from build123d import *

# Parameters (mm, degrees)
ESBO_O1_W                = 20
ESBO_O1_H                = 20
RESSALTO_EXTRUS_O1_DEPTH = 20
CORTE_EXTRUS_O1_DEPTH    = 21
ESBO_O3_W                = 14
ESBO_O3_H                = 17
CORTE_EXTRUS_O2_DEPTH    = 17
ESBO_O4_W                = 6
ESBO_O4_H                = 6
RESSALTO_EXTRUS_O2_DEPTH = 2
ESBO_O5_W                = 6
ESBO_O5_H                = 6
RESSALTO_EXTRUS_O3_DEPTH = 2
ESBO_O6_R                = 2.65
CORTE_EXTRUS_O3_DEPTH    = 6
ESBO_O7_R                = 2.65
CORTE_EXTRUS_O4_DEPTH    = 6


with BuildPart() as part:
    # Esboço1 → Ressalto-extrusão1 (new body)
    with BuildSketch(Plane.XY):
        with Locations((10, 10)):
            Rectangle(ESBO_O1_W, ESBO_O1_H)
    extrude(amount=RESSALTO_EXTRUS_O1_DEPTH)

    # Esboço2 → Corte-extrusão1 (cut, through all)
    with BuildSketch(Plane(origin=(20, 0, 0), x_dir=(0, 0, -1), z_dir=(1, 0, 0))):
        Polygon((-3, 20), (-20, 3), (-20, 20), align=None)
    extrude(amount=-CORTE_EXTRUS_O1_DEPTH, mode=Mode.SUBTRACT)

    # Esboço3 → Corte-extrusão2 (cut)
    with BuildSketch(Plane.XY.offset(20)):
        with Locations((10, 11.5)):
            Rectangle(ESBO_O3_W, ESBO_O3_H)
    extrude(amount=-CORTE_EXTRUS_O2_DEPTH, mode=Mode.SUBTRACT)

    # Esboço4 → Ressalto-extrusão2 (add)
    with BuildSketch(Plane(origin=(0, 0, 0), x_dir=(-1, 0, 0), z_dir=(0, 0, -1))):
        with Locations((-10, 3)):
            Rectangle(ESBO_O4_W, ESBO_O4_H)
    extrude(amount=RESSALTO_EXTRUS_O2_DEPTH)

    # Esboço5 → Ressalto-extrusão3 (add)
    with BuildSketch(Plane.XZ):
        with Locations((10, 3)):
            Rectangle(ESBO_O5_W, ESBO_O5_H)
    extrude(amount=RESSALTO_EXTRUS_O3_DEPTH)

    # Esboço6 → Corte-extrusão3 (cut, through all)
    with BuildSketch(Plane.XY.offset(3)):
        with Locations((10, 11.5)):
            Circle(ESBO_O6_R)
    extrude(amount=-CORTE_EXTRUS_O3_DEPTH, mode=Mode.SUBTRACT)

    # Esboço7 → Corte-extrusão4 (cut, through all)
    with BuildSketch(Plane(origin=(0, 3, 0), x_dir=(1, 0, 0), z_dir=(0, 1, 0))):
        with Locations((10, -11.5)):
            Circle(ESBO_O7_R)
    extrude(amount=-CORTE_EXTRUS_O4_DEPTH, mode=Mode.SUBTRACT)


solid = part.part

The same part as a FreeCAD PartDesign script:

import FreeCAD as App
import Part
import Sketcher
from FreeCAD import Vector

doc = App.newDocument("Part")
body = doc.addObject("PartDesign::Body", "Body")

sketch1 = body.newObject("Sketcher::SketchObject", "Sketch")
sketch1.AttachmentSupport = (doc.getObject("XY_Plane"), [""])
sketch1.MapMode = "FlatFace"
sketch1.addGeometry([
    Part.LineSegment(Vector(0, 20, 0), Vector(0, 0, 0)),
    Part.LineSegment(Vector(0, 0, 0), Vector(20, 0, 0)),
    Part.LineSegment(Vector(20, 0, 0), Vector(20, 20, 0)),
    Part.LineSegment(Vector(20, 20, 0), Vector(0, 20, 0)),
], False)
sketch1.addConstraint([
    Sketcher.Constraint("Coincident", 0, 2, 1, 1),
    Sketcher.Constraint("Coincident", 1, 2, 2, 1),
    Sketcher.Constraint("Coincident", 2, 2, 3, 1),
    Sketcher.Constraint("Coincident", 3, 2, 0, 1),
    Sketcher.Constraint("Vertical", 0),
    Sketcher.Constraint("Horizontal", 1),
    Sketcher.Constraint("Vertical", 2),
    Sketcher.Constraint("Horizontal", 3),
    Sketcher.Constraint("Coincident", 0, 2, -1, 1),
    Sketcher.Constraint("Equal", 3, 0),
    Sketcher.Constraint("DistanceX", 1, 1, 1, 2, 20.0),
])
pad1 = body.newObject("PartDesign::Pad", "Pad")
pad1.Profile = sketch1
pad1.Length = 20

sketch2 = body.newObject("Sketcher::SketchObject", "Sketch001")
sketch2.AttachmentSupport = (doc.getObject("YZ_Plane"), [""])
sketch2.MapMode = "FlatFace"
sketch2.AttachmentOffset = App.Placement(Vector(0, 0, 20), App.Rotation())
sketch2.addGeometry([
    Part.LineSegment(Vector(3, 20, 0), Vector(20, 3, 0)),
    Part.LineSegment(Vector(20, 3, 0), Vector(20, 20, 0)),
    Part.LineSegment(Vector(20, 20, 0), Vector(3, 20, 0)),
], False)
sketch2.addConstraint([
    Sketcher.Constraint("Coincident", 0, 2, 1, 1),
    Sketcher.Constraint("Coincident", 1, 2, 2, 1),
    Sketcher.Constraint("Coincident", 2, 2, 0, 1),
    Sketcher.Constraint("Vertical", 1),
    Sketcher.Constraint("Horizontal", 2),
    Sketcher.Constraint("Equal", 2, 1),
    Sketcher.Constraint("DistanceX", 2, 2, 2, 1, 17.0),
    Sketcher.Constraint("DistanceX", -1, 1, 0, 2, 20.0),
    Sketcher.Constraint("DistanceY", -1, 1, 0, 2, 3.0),
])
pocket1 = body.newObject("PartDesign::Pocket", "Pocket")
pocket1.Profile = sketch2
pocket1.Type = "ThroughAll"

sketch3 = body.newObject("Sketcher::SketchObject", "Sketch002")
sketch3.AttachmentSupport = (doc.getObject("XY_Plane"), [""])
sketch3.MapMode = "FlatFace"
sketch3.AttachmentOffset = App.Placement(Vector(0, 0, 20), App.Rotation())
sketch3.addGeometry([
    Part.LineSegment(Vector(3, 20, 0), Vector(3, 3, 0)),
    Part.LineSegment(Vector(3, 3, 0), Vector(17, 3, 0)),
    Part.LineSegment(Vector(17, 3, 0), Vector(17, 20, 0)),
    Part.LineSegment(Vector(17, 20, 0), Vector(3, 20, 0)),
], False)
sketch3.addConstraint([
    Sketcher.Constraint("Coincident", 0, 2, 1, 1),
    Sketcher.Constraint("Coincident", 1, 2, 2, 1),
    Sketcher.Constraint("Coincident", 2, 2, 3, 1),
    Sketcher.Constraint("Coincident", 3, 2, 0, 1),
    Sketcher.Constraint("Vertical", 0),
    Sketcher.Constraint("Horizontal", 1),
    Sketcher.Constraint("Vertical", 2),
    Sketcher.Constraint("Horizontal", 3),
    Sketcher.Constraint("DistanceX", 1, 1, 1, 2, 14.0),
    Sketcher.Constraint("DistanceY", 0, 2, 0, 1, 17.0),
    Sketcher.Constraint("DistanceX", -1, 1, 0, 2, 3.0),
    Sketcher.Constraint("DistanceY", -1, 1, 0, 2, 3.0),
])
pocket2 = body.newObject("PartDesign::Pocket", "Pocket001")
pocket2.Profile = sketch3
pocket2.Length = 17

sketch4 = body.newObject("Sketcher::SketchObject", "Sketch003")
sketch4.AttachmentSupport = (doc.getObject("XY_Plane"), [""])
sketch4.MapMode = "FlatFace"
sketch4.addGeometry([
    Part.LineSegment(Vector(13, 6, 0), Vector(13, 0, 0)),
    Part.LineSegment(Vector(13, 0, 0), Vector(7, 0, 0)),
    Part.LineSegment(Vector(7, 0, 0), Vector(7, 6, 0)),
    Part.LineSegment(Vector(7, 6, 0), Vector(13, 6, 0)),
], False)
sketch4.addConstraint([
    Sketcher.Constraint("Coincident", 0, 2, 1, 1),
    Sketcher.Constraint("Coincident", 1, 2, 2, 1),
    Sketcher.Constraint("Coincident", 2, 2, 3, 1),
    Sketcher.Constraint("Coincident", 3, 2, 0, 1),
    Sketcher.Constraint("Vertical", 0),
    Sketcher.Constraint("Horizontal", 1),
    Sketcher.Constraint("Vertical", 2),
    Sketcher.Constraint("Horizontal", 3),
    Sketcher.Constraint("PointOnObject", 0, 2, -1),
    Sketcher.Constraint("Equal", 3, 0),
    Sketcher.Constraint("DistanceX", 1, 2, 1, 1, 6.0),
    Sketcher.Constraint("DistanceX", -1, 1, 0, 2, 13.0),
])
pad2 = body.newObject("PartDesign::Pad", "Pad001")
pad2.Profile = sketch4
pad2.Length = 2
pad2.Reversed = True

sketch5 = body.newObject("Sketcher::SketchObject", "Sketch004")
sketch5.AttachmentSupport = (doc.getObject("XZ_Plane"), [""])
sketch5.MapMode = "FlatFace"
sketch5.addGeometry([
    Part.LineSegment(Vector(7, 6, 0), Vector(7, 0, 0)),
    Part.LineSegment(Vector(7, 0, 0), Vector(13, 0, 0)),
    Part.LineSegment(Vector(13, 0, 0), Vector(13, 6, 0)),
    Part.LineSegment(Vector(13, 6, 0), Vector(7, 6, 0)),
], False)
sketch5.addConstraint([
    Sketcher.Constraint("Coincident", 0, 2, 1, 1),
    Sketcher.Constraint("Coincident", 1, 2, 2, 1),
    Sketcher.Constraint("Coincident", 2, 2, 3, 1),
    Sketcher.Constraint("Coincident", 3, 2, 0, 1),
    Sketcher.Constraint("Vertical", 0),
    Sketcher.Constraint("Horizontal", 1),
    Sketcher.Constraint("Vertical", 2),
    Sketcher.Constraint("Horizontal", 3),
    Sketcher.Constraint("PointOnObject", 0, 2, -1),
    Sketcher.Constraint("Equal", 3, 0),
    Sketcher.Constraint("DistanceX", 1, 1, 1, 2, 6.0),
    Sketcher.Constraint("DistanceX", -1, 1, 0, 2, 7.0),
])
pad3 = body.newObject("PartDesign::Pad", "Pad002")
pad3.Profile = sketch5
pad3.Length = 2

sketch6 = body.newObject("Sketcher::SketchObject", "Sketch005")
sketch6.AttachmentSupport = (doc.getObject("XY_Plane"), [""])
sketch6.MapMode = "FlatFace"
sketch6.AttachmentOffset = App.Placement(Vector(0, 0, 3), App.Rotation())
sketch6.addGeometry(Part.Circle(Vector(10, 11.5, 0), Vector(0, 0, 1), 2.6), False)
sketch6.addConstraint([
    Sketcher.Constraint("Diameter", 0, 5.3),
    Sketcher.Constraint("DistanceX", -1, 1, 0, 3, 10.0),
    Sketcher.Constraint("DistanceY", -1, 1, 0, 3, 11.5),
])
pocket3 = body.newObject("PartDesign::Pocket", "Pocket002")
pocket3.Profile = sketch6
pocket3.Type = "ThroughAll"

sketch7 = body.newObject("Sketcher::SketchObject", "Sketch006")
sketch7.AttachmentSupport = (doc.getObject("XZ_Plane"), [""])
sketch7.MapMode = "FlatFace"
sketch7.AttachmentOffset = App.Placement(Vector(0, 0, -3), App.Rotation())
sketch7.addGeometry(Part.Circle(Vector(10, 11.5, 0), Vector(0, 0, 1), 2.6), False)
sketch7.addConstraint([
    Sketcher.Constraint("Diameter", 0, 5.3),
    Sketcher.Constraint("DistanceX", -1, 1, 0, 3, 10.0),
    Sketcher.Constraint("DistanceY", -1, 1, 0, 3, 11.5),
])
pocket4 = body.newObject("PartDesign::Pocket", "Pocket003")
pocket4.Profile = sketch7
pocket4.Type = "ThroughAll"
pocket4.Reversed = True

doc.recompute()
